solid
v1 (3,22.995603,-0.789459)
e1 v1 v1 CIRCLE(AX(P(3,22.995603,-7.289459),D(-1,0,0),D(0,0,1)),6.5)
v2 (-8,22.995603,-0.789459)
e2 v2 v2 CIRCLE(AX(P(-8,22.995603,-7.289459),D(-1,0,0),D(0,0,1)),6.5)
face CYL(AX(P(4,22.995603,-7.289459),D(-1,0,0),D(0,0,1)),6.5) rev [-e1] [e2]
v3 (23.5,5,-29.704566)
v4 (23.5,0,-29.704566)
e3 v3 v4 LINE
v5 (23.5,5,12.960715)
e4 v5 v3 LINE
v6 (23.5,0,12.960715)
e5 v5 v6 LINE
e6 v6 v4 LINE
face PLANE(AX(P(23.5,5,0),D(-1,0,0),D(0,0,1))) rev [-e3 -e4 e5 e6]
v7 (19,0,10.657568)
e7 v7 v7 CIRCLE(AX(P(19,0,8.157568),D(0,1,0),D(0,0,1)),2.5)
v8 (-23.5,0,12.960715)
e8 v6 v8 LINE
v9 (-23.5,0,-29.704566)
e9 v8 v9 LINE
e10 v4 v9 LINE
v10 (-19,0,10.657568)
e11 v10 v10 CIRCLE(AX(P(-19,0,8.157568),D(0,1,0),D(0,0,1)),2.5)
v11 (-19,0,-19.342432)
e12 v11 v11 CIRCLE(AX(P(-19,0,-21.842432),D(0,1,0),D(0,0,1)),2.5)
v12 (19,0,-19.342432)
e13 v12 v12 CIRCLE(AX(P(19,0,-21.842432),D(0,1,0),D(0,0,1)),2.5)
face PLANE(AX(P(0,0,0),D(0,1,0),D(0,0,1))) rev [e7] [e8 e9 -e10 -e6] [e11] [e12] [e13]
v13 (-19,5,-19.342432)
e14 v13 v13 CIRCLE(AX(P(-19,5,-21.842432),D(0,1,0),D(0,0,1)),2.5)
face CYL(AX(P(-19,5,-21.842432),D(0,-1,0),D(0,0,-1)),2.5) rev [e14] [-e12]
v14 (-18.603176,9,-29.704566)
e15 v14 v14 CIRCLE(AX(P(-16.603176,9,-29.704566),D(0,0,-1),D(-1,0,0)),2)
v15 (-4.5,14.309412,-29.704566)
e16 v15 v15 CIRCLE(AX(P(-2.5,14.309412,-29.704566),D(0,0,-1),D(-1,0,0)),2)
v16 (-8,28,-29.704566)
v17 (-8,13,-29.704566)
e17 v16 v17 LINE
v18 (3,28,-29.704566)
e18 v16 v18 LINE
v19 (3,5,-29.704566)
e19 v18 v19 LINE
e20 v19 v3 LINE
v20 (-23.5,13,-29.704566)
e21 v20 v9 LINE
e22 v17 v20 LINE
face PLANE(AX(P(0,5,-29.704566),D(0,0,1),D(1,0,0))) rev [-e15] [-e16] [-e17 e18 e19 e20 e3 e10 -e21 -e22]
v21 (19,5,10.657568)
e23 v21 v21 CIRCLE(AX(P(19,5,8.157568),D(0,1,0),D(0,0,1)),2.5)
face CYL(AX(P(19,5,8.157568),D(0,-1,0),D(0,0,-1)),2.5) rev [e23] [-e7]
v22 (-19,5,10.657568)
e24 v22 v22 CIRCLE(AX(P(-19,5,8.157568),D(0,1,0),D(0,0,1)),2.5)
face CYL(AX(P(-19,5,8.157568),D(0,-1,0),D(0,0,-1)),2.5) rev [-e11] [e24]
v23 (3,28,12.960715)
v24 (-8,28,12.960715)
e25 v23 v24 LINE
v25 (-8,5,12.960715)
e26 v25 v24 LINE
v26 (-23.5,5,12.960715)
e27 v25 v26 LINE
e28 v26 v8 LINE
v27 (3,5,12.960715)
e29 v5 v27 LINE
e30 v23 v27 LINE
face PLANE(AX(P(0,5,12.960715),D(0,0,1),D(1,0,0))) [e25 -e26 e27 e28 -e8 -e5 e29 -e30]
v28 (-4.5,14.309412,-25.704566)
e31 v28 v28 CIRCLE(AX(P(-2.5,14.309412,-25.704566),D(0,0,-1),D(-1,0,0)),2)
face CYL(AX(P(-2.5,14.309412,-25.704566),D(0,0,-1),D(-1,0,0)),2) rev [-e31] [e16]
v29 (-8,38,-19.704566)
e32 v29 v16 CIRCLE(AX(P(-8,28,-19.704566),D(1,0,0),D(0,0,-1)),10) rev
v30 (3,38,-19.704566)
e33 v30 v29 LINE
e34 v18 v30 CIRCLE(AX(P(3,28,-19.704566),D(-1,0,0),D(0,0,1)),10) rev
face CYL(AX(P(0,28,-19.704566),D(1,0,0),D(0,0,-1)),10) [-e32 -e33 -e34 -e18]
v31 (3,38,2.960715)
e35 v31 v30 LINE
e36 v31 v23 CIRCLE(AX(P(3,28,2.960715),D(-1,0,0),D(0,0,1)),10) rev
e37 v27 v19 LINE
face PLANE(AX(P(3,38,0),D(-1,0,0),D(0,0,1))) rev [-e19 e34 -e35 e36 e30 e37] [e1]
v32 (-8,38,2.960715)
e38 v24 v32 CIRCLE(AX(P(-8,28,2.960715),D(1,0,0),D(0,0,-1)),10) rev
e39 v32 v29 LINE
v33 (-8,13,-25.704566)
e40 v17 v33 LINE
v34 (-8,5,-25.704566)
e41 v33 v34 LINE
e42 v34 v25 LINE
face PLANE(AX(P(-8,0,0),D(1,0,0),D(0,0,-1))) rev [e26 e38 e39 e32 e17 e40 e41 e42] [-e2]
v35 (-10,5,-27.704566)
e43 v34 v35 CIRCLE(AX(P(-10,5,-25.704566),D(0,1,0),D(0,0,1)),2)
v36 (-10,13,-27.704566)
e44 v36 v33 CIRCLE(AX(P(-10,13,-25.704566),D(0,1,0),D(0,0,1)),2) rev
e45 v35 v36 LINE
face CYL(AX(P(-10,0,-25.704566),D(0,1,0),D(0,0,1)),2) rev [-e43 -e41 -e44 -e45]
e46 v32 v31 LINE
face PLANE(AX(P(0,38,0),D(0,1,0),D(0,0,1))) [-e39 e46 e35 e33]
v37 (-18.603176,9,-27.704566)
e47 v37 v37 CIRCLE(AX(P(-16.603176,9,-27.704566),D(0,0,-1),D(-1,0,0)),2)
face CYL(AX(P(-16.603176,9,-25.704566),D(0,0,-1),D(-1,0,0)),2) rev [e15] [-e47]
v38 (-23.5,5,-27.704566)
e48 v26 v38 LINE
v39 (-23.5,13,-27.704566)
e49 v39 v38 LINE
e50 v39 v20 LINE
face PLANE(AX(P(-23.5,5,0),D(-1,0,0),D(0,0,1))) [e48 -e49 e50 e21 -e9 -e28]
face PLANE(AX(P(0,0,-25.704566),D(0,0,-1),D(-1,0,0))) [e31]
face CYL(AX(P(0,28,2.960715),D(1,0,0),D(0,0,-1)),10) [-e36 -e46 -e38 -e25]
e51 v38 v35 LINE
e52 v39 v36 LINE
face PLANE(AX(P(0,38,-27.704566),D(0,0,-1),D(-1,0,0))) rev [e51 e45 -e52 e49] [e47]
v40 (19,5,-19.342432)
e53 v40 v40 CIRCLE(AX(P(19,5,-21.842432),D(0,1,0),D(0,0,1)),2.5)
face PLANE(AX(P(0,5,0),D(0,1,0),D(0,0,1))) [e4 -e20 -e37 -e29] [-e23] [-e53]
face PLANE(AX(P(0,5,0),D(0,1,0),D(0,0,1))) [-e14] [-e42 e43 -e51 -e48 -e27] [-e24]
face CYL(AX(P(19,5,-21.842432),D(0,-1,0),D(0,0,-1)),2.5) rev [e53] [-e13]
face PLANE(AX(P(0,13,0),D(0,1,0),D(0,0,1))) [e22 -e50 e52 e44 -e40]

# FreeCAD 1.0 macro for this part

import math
import FreeCAD as App
import Part
import Sketcher

V = App.Vector
Q = App.Units.Quantity


def edges_at(feature, points):
    """Names of the edges that pass closest to the given points."""
    edges = feature.Shape.Edges
    near = lambda p: min(range(len(edges)), key=lambda i: edges[i].distToShape(Part.Vertex(*p))[0])
    return sorted({f"Edge{near(p) + 1}" for p in points})

doc = App.newDocument("Part")
body = doc.addObject("PartDesign::Body", "Body")

# Sketch on XZ plane
sketch1 = body.newObject("Sketcher::SketchObject", "Sketch")
sketch1.AttachmentSupport = (doc.getObject("XZ_Plane"), [""])
sketch1.MapMode = "FlatFace"
sketch1.addGeometry(Part.LineSegment(V(-23.5, -29.7, 0), V(-23.5, 13, 0)), False)
sketch1.addGeometry(Part.LineSegment(V(-23.5, 13, 0), V(23.5, 13, 0)), False)
sketch1.addGeometry(Part.LineSegment(V(23.5, 13, 0), V(23.5, -29.7, 0)), False)
sketch1.addGeometry(Part.LineSegment(V(23.5, -29.7, 0), V(-23.5, -29.7, 0)), False)
sketch1.addGeometry(Part.Circle(V(-19, 8.2, 0), V(0, 0, 1), 2.5), False)
sketch1.addGeometry(Part.Circle(V(19, 8.2, 0), V(0, 0, 1), 2.5), False)
sketch1.addGeometry(Part.Circle(V(-19, -21.8, 0), V(0, 0, 1), 2.5), False)
sketch1.addGeometry(Part.Circle(V(19, -21.8, 0), V(0, 0, 1), 2.5), False)
sketch1.addConstraint(Sketcher.Constraint("Coincident", 0, 2, 1, 1))
sketch1.addConstraint(Sketcher.Constraint("Coincident", 1, 2, 2, 1))
sketch1.addConstraint(Sketcher.Constraint("Coincident", 2, 2, 3, 1))
sketch1.addConstraint(Sketcher.Constraint("Coincident", 3, 2, 0, 1))
sketch1.addConstraint(Sketcher.Constraint("Vertical", 0))
sketch1.addConstraint(Sketcher.Constraint("Horizontal", 1))
sketch1.addConstraint(Sketcher.Constraint("Vertical", 2))
sketch1.addConstraint(Sketcher.Constraint("Horizontal", 3))
sketch1.addConstraint(Sketcher.Constraint("Equal", 4, 5))
sketch1.addConstraint(Sketcher.Constraint("Equal", 5, 6))
sketch1.addConstraint(Sketcher.Constraint("Equal", 6, 7))
sketch1.addConstraint(Sketcher.Constraint("Symmetric", 4, 3, 5, 3, -2))
sketch1.addConstraint(Sketcher.Constraint("Symmetric", 6, 3, 7, 3, -2))
sketch1.addConstraint(Sketcher.Constraint("Vertical", 4, 3, 6, 3))
sketch1.addConstraint(Sketcher.Constraint("Diameter", 4, Q("5 mm")))
sketch1.addConstraint(Sketcher.Constraint("DistanceX", 1, 1, 1, 2, Q("47 mm")))
sketch1.addConstraint(Sketcher.Constraint("DistanceX", 4, 3, -1, 1, Q("19 mm")))
sketch1.addConstraint(Sketcher.Constraint("DistanceY", 6, 3, 4, 3, Q("30 mm")))
sketch1.addConstraint(Sketcher.Constraint("DistanceX", 0, 2, -1, 1, Q("23.5 mm")))
sketch1.addConstraint(Sketcher.Constraint("DistanceY", 0, 1, 0, 2, Q("42.665282 mm")))
sketch1.addConstraint(Sketcher.Constraint("DistanceY", -1, 1, 4, 3, Q("8.157568 mm")))
sketch1.addConstraint(Sketcher.Constraint("DistanceY", -1, 1, 0, 2, Q("12.960715 mm")))
pad1 = body.newObject("PartDesign::Pad", "Pad")
pad1.Profile = sketch1
pad1.Length = 5
pad1.Reversed = True

# Sketch on XZ plane
sketch2 = body.newObject("Sketcher::SketchObject", "Sketch001")
sketch2.AttachmentSupport = (doc.getObject("XZ_Plane"), [""])
sketch2.MapMode = "FlatFace"
sketch2.AttachmentOffset = App.Placement(V(0, 0, -5), App.Rotation())
sketch2.addGeometry(Part.LineSegment(V(-3, -27.7, 0), V(-3, 13, 0)), False)
sketch2.addGeometry(Part.LineSegment(V(-3, 13, 0), V(3, 13, 0)), False)
sketch2.addGeometry(Part.LineSegment(V(3, 13, 0), V(3, -27.7, 0)), False)
sketch2.addGeometry(Part.LineSegment(V(3, -27.7, 0), V(23.5, -27.7, 0)), False)
sketch2.addGeometry(Part.LineSegment(V(23.5, -27.7, 0), V(23.5, -29.7, 0)), False)
sketch2.addGeometry(Part.LineSegment(V(23.5, -29.7, 0), V(3, -29.7, 0)), False)
sketch2.addGeometry(Part.LineSegment(V(3, -29.7, 0), V(-3, -29.7, 0)), False)
sketch2.addGeometry(Part.LineSegment(V(-3, -29.7, 0), V(-23.5, -29.7, 0)), False)
sketch2.addGeometry(Part.LineSegment(V(-23.5, -29.7, 0), V(-23.5, -27.7, 0)), False)
sketch2.addGeometry(Part.LineSegment(V(-23.5, -27.7, 0), V(-3, -27.7, 0)), False)
sketch2.addConstraint(Sketcher.Constraint("Coincident", 0, 2, 1, 1))
sketch2.addConstraint(Sketcher.Constraint("Coincident", 1, 2, 2, 1))
sketch2.addConstraint(Sketcher.Constraint("Coincident", 2, 2, 3, 1))
sketch2.addConstraint(Sketcher.Constraint("Coincident", 3, 2, 4, 1))
sketch2.addConstraint(Sketcher.Constraint("Coincident", 4, 2, 5, 1))
sketch2.addConstraint(Sketcher.Constraint("Coincident", 5, 2, 6, 1))
sketch2.addConstraint(Sketcher.Constraint("Coincident", 6, 2, 7, 1))
sketch2.addConstraint(Sketcher.Constraint("Coincident", 7, 2, 8, 1))
sketch2.addConstraint(Sketcher.Constraint("Coincident", 8, 2, 9, 1))
sketch2.addConstraint(Sketcher.Constraint("Coincident", 9, 2, 0, 1))
sketch2.addConstraint(Sketcher.Constraint("Vertical", 0))
sketch2.addConstraint(Sketcher.Constraint("Horizontal", 1))
sketch2.addConstraint(Sketcher.Constraint("Vertical", 2))
sketch2.addConstraint(Sketcher.Constraint("Horizontal", 3))
sketch2.addConstraint(Sketcher.Constraint("Vertical", 4))
sketch2.addConstraint(Sketcher.Constraint("Horizontal", 5))
sketch2.addConstraint(Sketcher.Constraint("Horizontal", 6))
sketch2.addConstraint(Sketcher.Constraint("Horizontal", 7))
sketch2.addConstraint(Sketcher.Constraint("Vertical", 8))
sketch2.addConstraint(Sketcher.Constraint("Horizontal", 9))
sketch2.addConstraint(Sketcher.Constraint("Symmetric", 3, 2, 8, 2, -2))
sketch2.addConstraint(Sketcher.Constraint("Vertical", 2, 2, 5, 2))
sketch2.addConstraint(Sketcher.Constraint("Vertical", 0, 2, 6, 2))
sketch2.addConstraint(Sketcher.Constraint("Equal", 5, 7))
sketch2.addConstraint(Sketcher.Constraint("DistanceX", 1, 1, 1, 2, Q("6 mm")))
sketch2.addConstraint(Sketcher.Constraint("DistanceY", 4, 2, 4, 1, Q("2 mm")))
sketch2.addConstraint(Sketcher.Constraint("DistanceX", 3, 1, 3, 2, Q("20.5 mm")))
sketch2.addConstraint(Sketcher.Constraint("DistanceY", 0, 1, 0, 2, Q("40.665282 mm")))
sketch2.addConstraint(Sketcher.Constraint("DistanceY", -1, 1, 0, 2, Q("12.960715 mm")))
pad2 = body.newObject("PartDesign::Pad", "Pad001")
pad2.Profile = sketch2
pad2.Length = 33
pad2.Reversed = True

# Sketch on YZ plane
sketch3 = body.newObject("Sketcher::SketchObject", "Sketch002")
sketch3.AttachmentSupport = (doc.getObject("YZ_Plane"), [""])
sketch3.MapMode = "FlatFace"
sketch3.AttachmentOffset = App.Placement(V(0, 0, -3), App.Rotation())
sketch3.addGeometry(Part.LineSegment(V(38, -28, 0), V(5, -28, 0)), False)
sketch3.addGeometry(Part.LineSegment(V(5, -28, 0), V(5, 13, 0)), False)
sketch3.addGeometry(Part.LineSegment(V(5, 13, 0), V(38, 13, 0)), False)
sketch3.addGeometry(Part.LineSegment(V(38, 13, 0), V(38, -28, 0)), False)
sketch3.addConstraint(Sketcher.Constraint("Coincident", 0, 2, 1, 1))
sketch3.addConstraint(Sketcher.Constraint("Coincident", 1, 2, 2, 1))
sketch3.addConstraint(Sketcher.Constraint("Coincident", 2, 2, 3, 1))
sketch3.addConstraint(Sketcher.Constraint("Coincident", 3, 2, 0, 1))
sketch3.addConstraint(Sketcher.Constraint("Horizontal", 0))
sketch3.addConstraint(Sketcher.Constraint("Vertical", 1))
sketch3.addConstraint(Sketcher.Constraint("Horizontal", 2))
sketch3.addConstraint(Sketcher.Constraint("Vertical", 3))
sketch3.addConstraint(Sketcher.Constraint("DistanceX", 0, 2, 0, 1, Q("33 mm")))
sketch3.addConstraint(Sketcher.Constraint("DistanceX", -1, 1, 0, 2, Q("5 mm")))
sketch3.addConstraint(Sketcher.Constraint("DistanceY", 1, 1, 1, 2, Q("40.665282 mm")))
sketch3.addConstraint(Sketcher.Constraint("DistanceY", 0, 2, -1, 1, Q("27.704566 mm")))
pad3 = body.newObject("PartDesign::Pad", "Pad002")
pad3.Profile = sketch3
pad3.Length = 6

# Sketch on YZ plane
sketch4 = body.newObject("Sketcher::SketchObject", "Sketch003")
sketch4.AttachmentSupport = (doc.getObject("YZ_Plane"), [""])
sketch4.MapMode = "FlatFace"
sketch4.AttachmentOffset = App.Placement(V(0, 0, -3), App.Rotation())
sketch4.addGeometry(Part.Circle(V(23, -7, 0), V(0, 0, 1), 6), False)
sketch4.addConstraint(Sketcher.Constraint("Diameter", 0, Q("13 mm")))
sketch4.addConstraint(Sketcher.Constraint("DistanceY", 0, 3, -1, 1, Q("7.289459 mm")))
sketch4.addConstraint(Sketcher.Constraint("DistanceX", -1, 1, 0, 3, Q("22.995603 mm")))
pocket1 = body.newObject("PartDesign::Pocket", "Pocket")
pocket1.Profile = sketch4
pocket1.Length = 7
pocket1.Reversed = True
doc.recompute()

chamfer = body.newObject("PartDesign::Chamfer", "Chamfer")
chamfer.Base = (pocket1, edges_at(pocket1, [(23.5, 38, -28.705), (-23.5, 38, -28.705)]))
chamfer.Size = 3

# Sketch on XZ plane
sketch5 = body.newObject("Sketcher::SketchObject", "Sketch004")
sketch5.AttachmentSupport = (doc.getObject("XZ_Plane"), [""])
sketch5.MapMode = "FlatFace"
sketch5.AttachmentOffset = App.Placement(V(0, 0, -38), App.Rotation())
sketch5.addGeometry(Part.LineSegment(V(-26, -22, 0), V(29, -22, 0)), False)
sketch5.addGeometry(Part.LineSegment(V(29, -22, 0), V(29, -31, 0)), False)
sketch5.addGeometry(Part.LineSegment(V(29, -31, 0), V(-26, -31, 0)), False)
sketch5.addGeometry(Part.LineSegment(V(-26, -31, 0), V(-26, -22, 0)), False)
sketch5.addConstraint(Sketcher.Constraint("Coincident", 0, 2, 1, 1))
sketch5.addConstraint(Sketcher.Constraint("Coincident", 1, 2, 2, 1))
sketch5.addConstraint(Sketcher.Constraint("Coincident", 2, 2, 3, 1))
sketch5.addConstraint(Sketcher.Constraint("Coincident", 3, 2, 0, 1))
sketch5.addConstraint(Sketcher.Constraint("Horizontal", 0))
sketch5.addConstraint(Sketcher.Constraint("Vertical", 1))
sketch5.addConstraint(Sketcher.Constraint("Horizontal", 2))
sketch5.addConstraint(Sketcher.Constraint("Vertical", 3))
sketch5.addConstraint(Sketcher.Constraint("DistanceX", 0, 1, 0, 2, Q("55.381851 mm")))
sketch5.addConstraint(Sketcher.Constraint("DistanceX", -1, 1, 0, 2, Q("28.9873 mm")))
sketch5.addConstraint(Sketcher.Constraint("DistanceY", 1, 2, 1, 1, Q("9.123154 mm")))
sketch5.addConstraint(Sketcher.Constraint("DistanceY", 1, 2, -1, 1, Q("31.415661 mm")))
pocket2 = body.newObject("PartDesign::Pocket", "Pocket001")
pocket2.Profile = sketch5
pocket2.Length = 25
pocket2.Reversed = True

# Sketch on XY plane
sketch6 = body.newObject("Sketcher::SketchObject", "Sketch005")
sketch6.AttachmentSupport = (doc.getObject("XY_Plane"), [""])
sketch6.MapMode = "FlatFace"
sketch6.AttachmentOffset = App.Placement(V(0, 0, -27.704566), App.Rotation())
sketch6.addGeometry(Part.LineSegment(V(3, 13, 0), V(3, 5, 0)), False)
sketch6.addGeometry(Part.LineSegment(V(3, 5, 0), V(24, 5, 0)), False)
sketch6.addGeometry(Part.LineSegment(V(24, 5, 0), V(24, 13, 0)), False)
sketch6.addGeometry(Part.LineSegment(V(24, 13, 0), V(3, 13, 0)), False)
sketch6.addConstraint(Sketcher.Constraint("Coincident", 0, 2, 1, 1))
sketch6.addConstraint(Sketcher.Constraint("Coincident", 1, 2, 2, 1))
sketch6.addConstraint(Sketcher.Constraint("Coincident", 2, 2, 3, 1))
sketch6.addConstraint(Sketcher.Constraint("Coincident", 3, 2, 0, 1))
sketch6.addConstraint(Sketcher.Constraint("Vertical", 0))
sketch6.addConstraint(Sketcher.Constraint("Horizontal", 1))
sketch6.addConstraint(Sketcher.Constraint("Vertical", 2))
sketch6.addConstraint(Sketcher.Constraint("Horizontal", 3))
sketch6.addConstraint(Sketcher.Constraint("DistanceY", 0, 2, 0, 1, Q("8 mm")))
sketch6.addConstraint(Sketcher.Constraint("DistanceX", 1, 1, 1, 2, Q("20.5 mm")))
sketch6.addConstraint(Sketcher.Constraint("DistanceX", -1, 1, 0, 2, Q("3 mm")))
sketch6.addConstraint(Sketcher.Constraint("DistanceY", -1, 1, 0, 2, Q("5 mm")))
pocket3 = body.newObject("PartDesign::Pocket", "Pocket002")
pocket3.Profile = sketch6
pocket3.Length = 10

# Sketch on YZ plane
sketch7 = body.newObject("Sketcher::SketchObject", "Sketch006")
sketch7.AttachmentSupport = (doc.getObject("YZ_Plane"), [""])
sketch7.MapMode = "FlatFace"
sketch7.AttachmentOffset = App.Placement(V(0, 0, -3), App.Rotation())
sketch7.addGeometry(Part.LineSegment(V(38, 13, 0), V(38, -22, 0)), False)
sketch7.addGeometry(Part.LineSegment(V(38, -22, 0), V(13, -22, 0)), False)
sketch7.addGeometry(Part.LineSegment(V(13, -22, 0), V(13, -28, 0)), False)
sketch7.addGeometry(Part.LineSegment(V(13, -28, 0), V(5, -28, 0)), False)
sketch7.addGeometry(Part.LineSegment(V(5, -28, 0), V(5, 13, 0)), False)
sketch7.addGeometry(Part.LineSegment(V(5, 13, 0), V(38, 13, 0)), False)
sketch7.addGeometry(Part.Circle(V(23, -7, 0), V(0, 0, 1), 6), False)
sketch7.addConstraint(Sketcher.Constraint("Coincident", 0, 2, 1, 1))
sketch7.addConstraint(Sketcher.Constraint("Coincident", 1, 2, 2, 1))
sketch7.addConstraint(Sketcher.Constraint("Coincident", 2, 2, 3, 1))
sketch7.addConstraint(Sketcher.Constraint("Coincident", 3, 2, 4, 1))
sketch7.addConstraint(Sketcher.Constraint("Coincident", 4, 2, 5, 1))
sketch7.addConstraint(Sketcher.Constraint("Coincident", 5, 2, 0, 1))
sketch7.addConstraint(Sketcher.Constraint("Vertical", 0))
sketch7.addConstraint(Sketcher.Constraint("Horizontal", 1))
sketch7.addConstraint(Sketcher.Constraint("Vertical", 2))
sketch7.addConstraint(Sketcher.Constraint("Horizontal", 3))
sketch7.addConstraint(Sketcher.Constraint("Vertical", 4))
sketch7.addConstraint(Sketcher.Constraint("Horizontal", 5))
sketch7.addConstraint(Sketcher.Constraint("Diameter", 6, Q("13 mm")))
sketch7.addConstraint(Sketcher.Constraint("DistanceX", 1, 2, 1, 1, Q("25 mm")))
sketch7.addConstraint(Sketcher.Constraint("DistanceX", 3, 2, 3, 1, Q("8 mm")))
sketch7.addConstraint(Sketcher.Constraint("DistanceX", -1, 1, 0, 2, Q("38 mm")))
sketch7.addConstraint(Sketcher.Constraint("DistanceY", 2, 2, 2, 1, Q("5.412059 mm")))
sketch7.addConstraint(Sketcher.Constraint("DistanceY", 4, 1, 4, 2, Q("40.665282 mm")))
sketch7.addConstraint(Sketcher.Constraint("DistanceY", 6, 3, -1, 1, Q("7.289459 mm")))
sketch7.addConstraint(Sketcher.Constraint("DistanceY", 0, 2, 6, 3, Q("15.003049 mm")))
sketch7.addConstraint(Sketcher.Constraint("DistanceX", -1, 1, 6, 3, Q("22.995603 mm")))
pad4 = body.newObject("PartDesign::Pad", "Pad003")
pad4.Profile = sketch7
pad4.Length = 5
pad4.Reversed = True
doc.recompute()

fillet = body.newObject("PartDesign::Fillet", "Fillet")
fillet.Base = (pad4, edges_at(pad4, [(-8, 9, -27.705)]))
fillet.Radius = 2

# Sketch on XZ plane
sketch8 = body.newObject("Sketcher::SketchObject", "Sketch007")
sketch8.AttachmentSupport = (doc.getObject("XZ_Plane"), [""])
sketch8.MapMode = "FlatFace"
sketch8.AttachmentOffset = App.Placement(V(0, 0, -13), App.Rotation())
sketch8.addGeometry(Part.LineSegment(V(-8, -30, 0), V(-8, -22, 0)), False)
sketch8.addGeometry(Part.LineSegment(V(-8, -22, 0), V(3, -22, 0)), False)
sketch8.addGeometry(Part.LineSegment(V(3, -22, 0), V(3, -30, 0)), False)
sketch8.addGeometry(Part.LineSegment(V(3, -30, 0), V(-8, -30, 0)), False)
sketch8.addConstraint(Sketcher.Constraint("Coincident", 0, 2, 1, 1))
sketch8.addConstraint(Sketcher.Constraint("Coincident", 1, 2, 2, 1))
sketch8.addConstraint(Sketcher.Constraint("Coincident", 2, 2, 3, 1))
sketch8.addConstraint(Sketcher.Constraint("Coincident", 3, 2, 0, 1))
sketch8.addConstraint(Sketcher.Constraint("Vertical", 0))
sketch8.addConstraint(Sketcher.Constraint("Horizontal", 1))
sketch8.addConstraint(Sketcher.Constraint("Vertical", 2))
sketch8.addConstraint(Sketcher.Constraint("Horizontal", 3))
sketch8.addConstraint(Sketcher.Constraint("DistanceX", 1, 1, 1, 2, Q("11 mm")))
sketch8.addConstraint(Sketcher.Constraint("DistanceX", 0, 2, -1, 1, Q("8 mm")))
sketch8.addConstraint(Sketcher.Constraint("DistanceY", 0, 1, 0, 2, Q("7.412059 mm")))
sketch8.addConstraint(Sketcher.Constraint("DistanceY", 0, 2, -1, 1, Q("22.292507 mm")))
pad5 = body.newObject("PartDesign::Pad", "Pad004")
pad5.Profile = sketch8
pad5.Length = 25
pad5.Reversed = True
doc.recompute()

fillet2 = body.newObject("PartDesign::Fillet", "Fillet001")
fillet2.Base = (pad5, edges_at(pad5, [(-2.5, 38, -29.705), (-2.5, 38, 12.961)]))
fillet2.Radius = 10

# Sketch on XY plane
sketch9 = body.newObject("Sketcher::SketchObject", "Sketch008")
sketch9.AttachmentSupport = (doc.getObject("XY_Plane"), [""])
sketch9.MapMode = "FlatFace"
sketch9.AttachmentOffset = App.Placement(V(0, 0, -29.704566), App.Rotation())
sketch9.addGeometry(Part.Circle(V(-16.6, 9, 0), V(0, 0, 1), 2), False)
sketch9.addGeometry(Part.ArcOfCircle(Part.Circle(V(-2.5, 14.3, 0), V(0, 0, 1), 2), math.radians(90), math.radians(180)), False)
sketch9.addGeometry(Part.ArcOfCircle(Part.Circle(V(-2.5, 14.3, 0), V(0, 0, 1), 2), math.radians(-90), math.radians(90)), False)
sketch9.addGeometry(Part.ArcOfCircle(Part.Circle(V(-2.5, 14.3, 0), V(0, 0, 1), 2), math.radians(-180), math.radians(-90)), False)
sketch9.addConstraint(Sketcher.Constraint("Tangent", 1, 1, 2, 2))
sketch9.addConstraint(Sketcher.Constraint("Tangent", 2, 1, 3, 2))
sketch9.addConstraint(Sketcher.Constraint("Tangent", 3, 1, 1, 2))
sketch9.addConstraint(Sketcher.Constraint("Equal", 0, 1))
sketch9.addConstraint(Sketcher.Constraint("Horizontal", 2, 3, 3, 1))
sketch9.addConstraint(Sketcher.Constraint("Vertical", 3, 3, 1, 1))
sketch9.addConstraint(Sketcher.Constraint("Vertical", 1, 1, 2, 1))
sketch9.addConstraint(Sketcher.Constraint("Diameter", 0, Q("4 mm")))
sketch9.addConstraint(Sketcher.Constraint("DistanceY", -1, 1, 0, 3, Q("9 mm")))
sketch9.addConstraint(Sketcher.Constraint("DistanceX", 1, 3, -1, 1, Q("2.5 mm")))
sketch9.addConstraint(Sketcher.Constraint("DistanceY", -1, 1, 1, 3, Q("14.309412 mm")))
sketch9.addConstraint(Sketcher.Constraint("DistanceX", 0, 3, -1, 1, Q("16.603176 mm")))
pocket4 = body.newObject("PartDesign::Pocket", "Pocket003")
pocket4.Profile = sketch9
pocket4.Length = 4
pocket4.Reversed = True

doc.recompute()
